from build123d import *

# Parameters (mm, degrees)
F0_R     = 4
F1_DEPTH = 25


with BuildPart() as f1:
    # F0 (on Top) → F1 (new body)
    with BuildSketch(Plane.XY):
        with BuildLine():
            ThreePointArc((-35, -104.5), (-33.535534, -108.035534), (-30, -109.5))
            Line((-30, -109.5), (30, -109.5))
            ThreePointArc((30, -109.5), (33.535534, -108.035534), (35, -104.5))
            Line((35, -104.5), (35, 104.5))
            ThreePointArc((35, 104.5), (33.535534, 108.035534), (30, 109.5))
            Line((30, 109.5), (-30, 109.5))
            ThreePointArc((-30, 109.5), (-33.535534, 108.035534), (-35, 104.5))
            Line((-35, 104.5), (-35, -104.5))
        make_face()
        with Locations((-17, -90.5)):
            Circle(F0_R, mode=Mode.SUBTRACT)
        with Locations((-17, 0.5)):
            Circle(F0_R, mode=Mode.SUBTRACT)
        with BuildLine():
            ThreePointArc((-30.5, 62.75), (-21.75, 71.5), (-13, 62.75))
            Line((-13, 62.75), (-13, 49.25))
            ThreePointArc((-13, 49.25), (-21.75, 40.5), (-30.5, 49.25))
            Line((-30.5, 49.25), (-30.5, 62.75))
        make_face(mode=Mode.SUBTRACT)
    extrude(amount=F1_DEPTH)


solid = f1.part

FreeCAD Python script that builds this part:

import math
import FreeCAD as App
import Part
import Sketcher
Q = App.Units.Quantity

doc = App.newDocument("Part")
body = doc.addObject("PartDesign::Body", "Body")

# Sketch on XY plane
sketch1 = body.newObject("Sketcher::SketchObject", "Sketch")
sketch1.AttachmentSupport = (doc.getObject("XY_Plane"), [""])
sketch1.MapMode = "FlatFace"
sketch1.addGeometry([
    Part.ArcOfCircle(Part.Circle(App.Vector(-30, -104.5, 0), App.Vector(0, 0, 1), 5), math.radians(179.999996), math.radians(270.000004)),  # 0
    Part.LineSegment(App.Vector(-30, -109.5, 0), App.Vector(30, -109.5, 0)),  # 1
    Part.ArcOfCircle(Part.Circle(App.Vector(30, -104.5, 0), App.Vector(0, 0, 1), 5), math.radians(-90.000004), math.radians(0.000004)),  # 2
    Part.LineSegment(App.Vector(35, -104.5, 0), App.Vector(35, 104.5, 0)),  # 3
    Part.ArcOfCircle(Part.Circle(App.Vector(30, 104.5, 0), App.Vector(0, 0, 1), 5), math.radians(-0.000004), math.radians(90.000004)),  # 4
    Part.LineSegment(App.Vector(30, 109.5, 0), App.Vector(-30, 109.5, 0)),  # 5
    Part.ArcOfCircle(Part.Circle(App.Vector(-30, 104.5, 0), App.Vector(0, 0, 1), 5), math.radians(89.999996), math.radians(180.000004)),  # 6
    Part.LineSegment(App.Vector(-35, 104.5, 0), App.Vector(-35, -104.5, 0)),  # 7
    Part.Circle(App.Vector(-17, -90.5, 0), App.Vector(0, 0, 1), 4),  # 8
    Part.Circle(App.Vector(-17, 0.5, 0), App.Vector(0, 0, 1), 4),  # 9
    Part.LineSegment(App.Vector(-30.5, 49.25, 0), App.Vector(-30.5, 62.75, 0)),  # 10
    Part.ArcOfCircle(Part.Circle(App.Vector(-21.75, 62.75, 0), App.Vector(0, 0, 1), 8.75), math.radians(0), math.radians(180)),  # 11
    Part.LineSegment(App.Vector(-13, 62.75, 0), App.Vector(-13, 49.25, 0)),  # 12
    Part.ArcOfCircle(Part.Circle(App.Vector(-21.75, 49.25, 0), App.Vector(0, 0, 1), 8.75), math.radians(180), math.radians(360)),  # 13
], False)
sketch1.addConstraint([
    Sketcher.Constraint("Tangent", 0, 2, 1, 1),
    Sketcher.Constraint("Tangent", 1, 2, 2, 1),
    Sketcher.Constraint("Tangent", 2, 2, 3, 1),
    Sketcher.Constraint("Tangent", 3, 2, 4, 1),
    Sketcher.Constraint("Tangent", 4, 2, 5, 1),
    Sketcher.Constraint("Tangent", 5, 2, 6, 1),
    Sketcher.Constraint("Tangent", 6, 2, 7, 1),
    Sketcher.Constraint("Tangent", 7, 2, 0, 1),
    Sketcher.Constraint("Tangent", 10, 2, 11, 2),
    Sketcher.Constraint("Tangent", 11, 1, 12, 1),
    Sketcher.Constraint("Tangent", 12, 2, 13, 2),
    Sketcher.Constraint("Tangent", 13, 1, 10, 1),
    Sketcher.Constraint("Horizontal", 1),
    Sketcher.Constraint("Vertical", 3),
    Sketcher.Constraint("Horizontal", 5),
    Sketcher.Constraint("Vertical", 7),
    Sketcher.Constraint("Vertical", 10),
    Sketcher.Constraint("Vertical", 12),
    Sketcher.Constraint("Equal", 0, 2),
    Sketcher.Constraint("Equal", 2, 4),
    Sketcher.Constraint("Equal", 4, 6),
    Sketcher.Constraint("Equal", 8, 9),
    Sketcher.Constraint("Symmetric", 0, 3, 4, 3, -1, 1),
    Sketcher.Constraint("Vertical", 8, 3, 9, 3),
    Sketcher.Constraint("Diameter", 8, Q("8 mm")),
    Sketcher.Constraint("Radius", 0, Q("5 mm")),
    Sketcher.Constraint("DistanceX", 1, 1, 1, 2, Q("60 mm")),
    Sketcher.Constraint("DistanceY", 3, 1, 3, 2, Q("209 mm")),
    Sketcher.Constraint("Radius", 11, Q("8.75 mm")),
    Sketcher.Constraint("DistanceY", 10, 1, 10, 2, Q("13.5 mm")),
    Sketcher.Constraint("DistanceX", 8, 3, -1, 1, Q("17 mm")),
    Sketcher.Constraint("DistanceX", 11, 1, -1, 1, Q("13 mm")),
    Sketcher.Constraint("DistanceY", 0, 3, 8, 3, Q("14 mm")),
    Sketcher.Constraint("DistanceY", 8, 3, 9, 3, Q("91 mm")),
    Sketcher.Constraint("DistanceY", -1, 1, 11, 3, Q("62.75 mm")),
])
pad1 = body.newObject("PartDesign::Pad", "Pad")
pad1.Profile = sketch1
pad1.Length = 25

doc.recompute()
